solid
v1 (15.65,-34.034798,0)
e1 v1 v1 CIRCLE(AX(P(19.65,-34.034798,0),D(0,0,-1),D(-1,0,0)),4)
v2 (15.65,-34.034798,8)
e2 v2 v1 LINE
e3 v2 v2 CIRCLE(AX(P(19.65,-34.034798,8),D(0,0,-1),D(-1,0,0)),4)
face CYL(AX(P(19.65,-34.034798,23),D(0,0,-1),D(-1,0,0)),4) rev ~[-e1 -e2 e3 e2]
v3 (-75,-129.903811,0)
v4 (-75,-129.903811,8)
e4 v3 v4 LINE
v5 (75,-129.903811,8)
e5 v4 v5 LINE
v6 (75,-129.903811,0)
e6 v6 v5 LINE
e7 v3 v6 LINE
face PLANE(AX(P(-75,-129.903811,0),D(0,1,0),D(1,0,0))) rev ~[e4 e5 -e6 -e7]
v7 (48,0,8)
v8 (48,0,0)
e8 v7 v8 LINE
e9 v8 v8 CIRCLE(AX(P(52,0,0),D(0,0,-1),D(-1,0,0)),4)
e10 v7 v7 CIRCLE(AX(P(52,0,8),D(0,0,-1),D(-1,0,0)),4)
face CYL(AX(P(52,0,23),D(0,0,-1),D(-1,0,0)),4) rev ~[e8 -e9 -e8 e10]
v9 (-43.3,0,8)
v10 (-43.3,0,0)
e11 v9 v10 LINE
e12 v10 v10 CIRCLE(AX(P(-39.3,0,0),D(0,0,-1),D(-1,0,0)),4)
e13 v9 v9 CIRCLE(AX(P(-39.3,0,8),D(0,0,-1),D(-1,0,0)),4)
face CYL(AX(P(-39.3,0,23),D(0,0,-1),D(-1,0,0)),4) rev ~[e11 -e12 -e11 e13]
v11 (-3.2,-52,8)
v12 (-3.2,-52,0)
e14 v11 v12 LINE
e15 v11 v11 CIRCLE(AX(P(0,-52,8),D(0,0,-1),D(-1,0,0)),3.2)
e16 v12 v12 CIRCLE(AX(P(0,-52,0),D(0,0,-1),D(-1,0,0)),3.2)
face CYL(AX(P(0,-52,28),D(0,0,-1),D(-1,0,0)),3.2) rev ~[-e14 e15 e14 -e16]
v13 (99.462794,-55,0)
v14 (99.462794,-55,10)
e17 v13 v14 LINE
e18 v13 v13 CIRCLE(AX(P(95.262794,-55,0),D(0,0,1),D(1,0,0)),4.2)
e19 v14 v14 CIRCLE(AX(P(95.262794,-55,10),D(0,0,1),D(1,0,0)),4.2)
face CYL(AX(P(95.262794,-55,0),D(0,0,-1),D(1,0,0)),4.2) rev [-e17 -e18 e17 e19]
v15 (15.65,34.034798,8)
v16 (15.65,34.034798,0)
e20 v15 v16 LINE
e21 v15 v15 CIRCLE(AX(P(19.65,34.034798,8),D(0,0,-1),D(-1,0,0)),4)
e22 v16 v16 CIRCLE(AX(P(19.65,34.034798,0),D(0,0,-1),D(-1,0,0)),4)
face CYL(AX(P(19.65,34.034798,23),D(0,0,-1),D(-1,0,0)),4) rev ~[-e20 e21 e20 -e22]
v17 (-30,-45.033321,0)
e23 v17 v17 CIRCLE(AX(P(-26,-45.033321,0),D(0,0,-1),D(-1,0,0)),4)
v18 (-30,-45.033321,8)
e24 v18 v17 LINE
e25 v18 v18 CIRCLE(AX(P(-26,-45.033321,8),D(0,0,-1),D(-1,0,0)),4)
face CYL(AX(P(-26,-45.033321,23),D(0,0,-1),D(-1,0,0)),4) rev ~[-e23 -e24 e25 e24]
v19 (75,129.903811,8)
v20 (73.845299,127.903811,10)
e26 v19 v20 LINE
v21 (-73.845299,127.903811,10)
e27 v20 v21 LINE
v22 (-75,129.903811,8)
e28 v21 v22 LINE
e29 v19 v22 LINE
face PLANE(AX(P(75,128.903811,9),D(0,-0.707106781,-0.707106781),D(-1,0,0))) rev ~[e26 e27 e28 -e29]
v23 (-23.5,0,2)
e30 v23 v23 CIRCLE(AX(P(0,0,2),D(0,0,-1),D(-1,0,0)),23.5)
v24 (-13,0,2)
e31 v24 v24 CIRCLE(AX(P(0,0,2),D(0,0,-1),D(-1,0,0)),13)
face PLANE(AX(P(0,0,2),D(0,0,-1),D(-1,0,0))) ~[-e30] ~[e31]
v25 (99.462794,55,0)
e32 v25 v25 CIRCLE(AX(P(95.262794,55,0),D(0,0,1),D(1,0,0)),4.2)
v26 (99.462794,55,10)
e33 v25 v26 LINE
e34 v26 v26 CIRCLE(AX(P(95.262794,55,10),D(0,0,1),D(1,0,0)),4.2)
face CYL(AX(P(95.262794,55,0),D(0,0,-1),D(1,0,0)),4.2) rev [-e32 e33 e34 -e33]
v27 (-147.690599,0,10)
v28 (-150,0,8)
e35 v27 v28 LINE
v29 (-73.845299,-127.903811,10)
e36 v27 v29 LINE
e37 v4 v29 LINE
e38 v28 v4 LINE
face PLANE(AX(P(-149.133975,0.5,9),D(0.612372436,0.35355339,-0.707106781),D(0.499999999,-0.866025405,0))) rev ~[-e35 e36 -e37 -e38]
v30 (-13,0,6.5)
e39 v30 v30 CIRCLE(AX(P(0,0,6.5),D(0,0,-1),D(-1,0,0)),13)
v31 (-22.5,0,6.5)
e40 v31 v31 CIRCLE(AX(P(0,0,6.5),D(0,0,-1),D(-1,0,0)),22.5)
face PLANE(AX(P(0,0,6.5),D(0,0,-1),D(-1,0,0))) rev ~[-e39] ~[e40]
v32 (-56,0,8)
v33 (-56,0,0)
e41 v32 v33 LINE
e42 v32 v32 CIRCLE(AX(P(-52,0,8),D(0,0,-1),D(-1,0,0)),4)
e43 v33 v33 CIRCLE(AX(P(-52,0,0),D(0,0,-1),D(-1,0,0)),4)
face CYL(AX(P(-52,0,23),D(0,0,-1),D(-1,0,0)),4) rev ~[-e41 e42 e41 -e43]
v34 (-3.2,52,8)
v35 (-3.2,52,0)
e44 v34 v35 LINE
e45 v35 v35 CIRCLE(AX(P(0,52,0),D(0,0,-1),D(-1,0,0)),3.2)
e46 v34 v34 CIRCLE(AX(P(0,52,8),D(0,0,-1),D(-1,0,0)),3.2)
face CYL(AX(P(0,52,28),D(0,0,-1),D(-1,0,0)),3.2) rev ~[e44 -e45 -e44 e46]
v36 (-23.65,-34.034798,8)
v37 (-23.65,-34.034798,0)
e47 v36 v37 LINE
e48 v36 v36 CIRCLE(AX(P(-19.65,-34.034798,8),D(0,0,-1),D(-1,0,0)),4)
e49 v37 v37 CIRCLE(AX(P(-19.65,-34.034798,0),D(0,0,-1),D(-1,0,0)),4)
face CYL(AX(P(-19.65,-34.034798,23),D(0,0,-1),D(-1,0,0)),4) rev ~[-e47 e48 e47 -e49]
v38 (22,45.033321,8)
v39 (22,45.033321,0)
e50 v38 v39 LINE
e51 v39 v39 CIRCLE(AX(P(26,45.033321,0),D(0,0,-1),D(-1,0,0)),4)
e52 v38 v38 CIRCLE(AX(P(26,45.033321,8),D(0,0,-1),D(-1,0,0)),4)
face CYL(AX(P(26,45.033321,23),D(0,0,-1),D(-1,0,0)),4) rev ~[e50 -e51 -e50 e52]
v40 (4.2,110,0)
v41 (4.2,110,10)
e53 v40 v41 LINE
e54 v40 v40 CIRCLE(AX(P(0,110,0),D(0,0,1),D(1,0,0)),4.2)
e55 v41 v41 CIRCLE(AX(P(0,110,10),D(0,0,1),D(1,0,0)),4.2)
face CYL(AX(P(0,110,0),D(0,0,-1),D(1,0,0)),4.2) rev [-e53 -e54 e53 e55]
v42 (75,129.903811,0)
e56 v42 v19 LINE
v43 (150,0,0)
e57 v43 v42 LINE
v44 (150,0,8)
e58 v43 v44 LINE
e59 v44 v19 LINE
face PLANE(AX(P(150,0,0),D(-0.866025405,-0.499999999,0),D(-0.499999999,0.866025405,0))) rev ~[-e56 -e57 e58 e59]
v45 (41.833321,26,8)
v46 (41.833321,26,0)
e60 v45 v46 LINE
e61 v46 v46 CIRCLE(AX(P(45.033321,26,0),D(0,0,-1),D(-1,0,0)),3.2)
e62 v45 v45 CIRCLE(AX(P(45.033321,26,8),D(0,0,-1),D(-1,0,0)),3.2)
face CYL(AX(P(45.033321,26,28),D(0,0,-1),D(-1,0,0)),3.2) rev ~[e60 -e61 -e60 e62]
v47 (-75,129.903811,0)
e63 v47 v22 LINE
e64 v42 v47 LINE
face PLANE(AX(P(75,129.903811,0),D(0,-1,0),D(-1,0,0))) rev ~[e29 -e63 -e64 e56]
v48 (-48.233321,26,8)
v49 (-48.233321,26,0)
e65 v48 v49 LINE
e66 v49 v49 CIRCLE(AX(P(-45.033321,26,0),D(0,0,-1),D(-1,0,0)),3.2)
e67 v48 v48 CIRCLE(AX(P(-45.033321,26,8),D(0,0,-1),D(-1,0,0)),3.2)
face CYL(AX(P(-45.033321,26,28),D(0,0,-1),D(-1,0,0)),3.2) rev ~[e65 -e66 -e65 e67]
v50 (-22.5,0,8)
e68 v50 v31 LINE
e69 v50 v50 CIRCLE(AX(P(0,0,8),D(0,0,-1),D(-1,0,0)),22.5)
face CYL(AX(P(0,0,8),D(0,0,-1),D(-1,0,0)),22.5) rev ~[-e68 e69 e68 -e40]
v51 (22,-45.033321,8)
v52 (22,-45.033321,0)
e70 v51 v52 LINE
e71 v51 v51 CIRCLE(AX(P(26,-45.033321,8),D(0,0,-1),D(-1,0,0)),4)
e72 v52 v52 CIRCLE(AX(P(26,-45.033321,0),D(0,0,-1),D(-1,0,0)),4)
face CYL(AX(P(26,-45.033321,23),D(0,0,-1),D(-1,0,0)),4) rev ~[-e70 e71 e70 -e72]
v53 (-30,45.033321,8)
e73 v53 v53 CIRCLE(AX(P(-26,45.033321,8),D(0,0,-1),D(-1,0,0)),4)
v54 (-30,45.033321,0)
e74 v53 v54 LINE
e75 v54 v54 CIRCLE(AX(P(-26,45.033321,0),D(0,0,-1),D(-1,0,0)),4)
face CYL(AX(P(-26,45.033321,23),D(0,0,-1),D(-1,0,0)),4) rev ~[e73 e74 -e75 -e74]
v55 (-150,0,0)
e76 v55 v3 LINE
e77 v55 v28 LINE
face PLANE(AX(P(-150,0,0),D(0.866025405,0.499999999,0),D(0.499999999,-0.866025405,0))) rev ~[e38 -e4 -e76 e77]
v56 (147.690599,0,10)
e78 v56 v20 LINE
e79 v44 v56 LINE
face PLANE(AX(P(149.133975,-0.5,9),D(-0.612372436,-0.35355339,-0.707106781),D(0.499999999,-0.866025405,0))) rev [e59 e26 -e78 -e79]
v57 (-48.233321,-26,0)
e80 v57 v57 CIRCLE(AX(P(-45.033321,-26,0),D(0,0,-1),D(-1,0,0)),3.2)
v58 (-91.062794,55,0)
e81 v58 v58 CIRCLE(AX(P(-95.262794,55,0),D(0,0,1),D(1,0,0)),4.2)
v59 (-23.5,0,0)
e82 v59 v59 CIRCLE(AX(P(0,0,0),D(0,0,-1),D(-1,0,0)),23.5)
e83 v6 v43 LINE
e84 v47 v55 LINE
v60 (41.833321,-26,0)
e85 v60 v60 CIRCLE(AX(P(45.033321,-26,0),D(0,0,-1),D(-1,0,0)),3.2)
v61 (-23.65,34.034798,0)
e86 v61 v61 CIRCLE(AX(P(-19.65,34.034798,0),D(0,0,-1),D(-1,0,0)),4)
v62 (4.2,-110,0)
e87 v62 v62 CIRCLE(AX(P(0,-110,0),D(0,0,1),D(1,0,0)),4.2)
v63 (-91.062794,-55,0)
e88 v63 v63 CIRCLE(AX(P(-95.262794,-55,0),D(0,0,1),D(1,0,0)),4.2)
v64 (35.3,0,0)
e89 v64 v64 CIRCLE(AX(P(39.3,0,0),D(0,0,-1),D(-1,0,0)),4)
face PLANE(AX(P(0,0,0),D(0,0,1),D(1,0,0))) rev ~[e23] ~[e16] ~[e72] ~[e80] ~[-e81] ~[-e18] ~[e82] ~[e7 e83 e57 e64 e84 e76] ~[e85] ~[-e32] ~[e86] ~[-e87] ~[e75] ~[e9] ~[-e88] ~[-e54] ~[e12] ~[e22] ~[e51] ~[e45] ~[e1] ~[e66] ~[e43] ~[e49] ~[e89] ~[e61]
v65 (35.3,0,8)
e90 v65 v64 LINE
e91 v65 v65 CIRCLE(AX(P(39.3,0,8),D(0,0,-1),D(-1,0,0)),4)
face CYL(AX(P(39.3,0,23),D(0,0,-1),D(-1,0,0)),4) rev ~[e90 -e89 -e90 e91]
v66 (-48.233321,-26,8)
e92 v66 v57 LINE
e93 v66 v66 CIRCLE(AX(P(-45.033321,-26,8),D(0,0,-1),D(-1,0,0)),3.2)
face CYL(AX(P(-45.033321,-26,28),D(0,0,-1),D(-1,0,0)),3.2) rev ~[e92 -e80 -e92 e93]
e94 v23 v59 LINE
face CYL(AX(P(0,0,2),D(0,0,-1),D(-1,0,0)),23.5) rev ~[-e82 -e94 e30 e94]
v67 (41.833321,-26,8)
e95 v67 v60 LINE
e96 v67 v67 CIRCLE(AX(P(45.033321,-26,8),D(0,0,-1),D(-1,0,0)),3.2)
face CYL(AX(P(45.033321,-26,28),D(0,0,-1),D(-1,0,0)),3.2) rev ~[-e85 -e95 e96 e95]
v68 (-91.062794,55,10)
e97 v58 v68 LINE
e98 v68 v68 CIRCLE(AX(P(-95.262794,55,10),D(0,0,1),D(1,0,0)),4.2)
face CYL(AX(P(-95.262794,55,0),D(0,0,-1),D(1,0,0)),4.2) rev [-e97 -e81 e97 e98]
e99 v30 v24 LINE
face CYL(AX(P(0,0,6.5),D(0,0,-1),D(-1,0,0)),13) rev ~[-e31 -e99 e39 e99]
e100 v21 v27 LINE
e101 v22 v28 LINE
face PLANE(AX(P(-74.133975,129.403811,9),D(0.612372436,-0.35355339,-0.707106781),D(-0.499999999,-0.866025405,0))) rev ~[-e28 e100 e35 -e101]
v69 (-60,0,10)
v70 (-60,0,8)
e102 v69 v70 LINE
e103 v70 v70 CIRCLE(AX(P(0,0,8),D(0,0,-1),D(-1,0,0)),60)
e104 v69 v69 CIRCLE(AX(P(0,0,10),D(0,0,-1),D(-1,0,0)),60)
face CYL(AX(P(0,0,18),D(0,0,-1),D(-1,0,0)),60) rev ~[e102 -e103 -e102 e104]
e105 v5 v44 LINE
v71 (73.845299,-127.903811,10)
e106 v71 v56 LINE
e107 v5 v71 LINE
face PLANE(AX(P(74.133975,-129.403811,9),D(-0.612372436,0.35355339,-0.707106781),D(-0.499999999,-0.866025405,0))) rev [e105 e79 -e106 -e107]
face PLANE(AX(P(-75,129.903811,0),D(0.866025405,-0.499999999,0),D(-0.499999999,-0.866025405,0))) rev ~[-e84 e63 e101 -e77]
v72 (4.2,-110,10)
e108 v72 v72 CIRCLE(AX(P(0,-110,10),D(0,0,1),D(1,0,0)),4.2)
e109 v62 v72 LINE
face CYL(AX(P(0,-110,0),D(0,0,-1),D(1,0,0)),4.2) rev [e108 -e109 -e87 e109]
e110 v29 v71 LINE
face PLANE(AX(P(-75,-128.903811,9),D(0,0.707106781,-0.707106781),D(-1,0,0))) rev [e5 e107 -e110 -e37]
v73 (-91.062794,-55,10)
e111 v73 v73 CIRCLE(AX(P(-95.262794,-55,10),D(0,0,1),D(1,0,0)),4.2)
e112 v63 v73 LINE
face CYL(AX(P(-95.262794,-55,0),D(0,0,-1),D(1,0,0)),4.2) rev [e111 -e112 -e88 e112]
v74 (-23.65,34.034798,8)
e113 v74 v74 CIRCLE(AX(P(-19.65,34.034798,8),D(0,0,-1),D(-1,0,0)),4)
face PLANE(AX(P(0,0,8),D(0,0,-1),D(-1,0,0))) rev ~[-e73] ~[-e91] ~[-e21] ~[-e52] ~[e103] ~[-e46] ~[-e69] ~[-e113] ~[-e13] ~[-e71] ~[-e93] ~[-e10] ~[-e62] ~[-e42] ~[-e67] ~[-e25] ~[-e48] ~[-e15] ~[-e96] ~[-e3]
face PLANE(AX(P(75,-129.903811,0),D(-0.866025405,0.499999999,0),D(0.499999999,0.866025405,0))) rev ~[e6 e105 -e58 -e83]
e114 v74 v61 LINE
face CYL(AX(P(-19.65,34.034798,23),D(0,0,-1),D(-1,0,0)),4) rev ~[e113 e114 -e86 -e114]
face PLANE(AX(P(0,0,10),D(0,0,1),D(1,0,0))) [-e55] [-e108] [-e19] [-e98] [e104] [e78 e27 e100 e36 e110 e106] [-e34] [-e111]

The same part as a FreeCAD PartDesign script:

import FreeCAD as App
import Part
import Sketcher
from FreeCAD import Vector
Q = App.Units.Quantity


def edges_at(feature, points):
    """Names of the edges that pass closest to the given points."""
    edges = feature.Shape.Edges
    near = lambda p: min(range(len(edges)), key=lambda i: edges[i].distToShape(Part.Vertex(*p))[0])
    return sorted({f"Edge{near(p) + 1}" for p in points})

doc = App.newDocument("Part")
body = doc.addObject("PartDesign::Body", "Body")

sketch1 = body.newObject("Sketcher::SketchObject", "Sketch")
sketch1.AttachmentSupport = (doc.getObject("XY_Plane"), [""])
sketch1.MapMode = "FlatFace"
sketch1.addGeometry([
    Part.LineSegment(Vector(75, -129.903811, 0), Vector(150, 0, 0)),
    Part.LineSegment(Vector(150, 0, 0), Vector(75, 129.903811, 0)),
    Part.LineSegment(Vector(75, 129.903811, 0), Vector(-75, 129.903811, 0)),
    Part.LineSegment(Vector(-75, 129.903811, 0), Vector(-150, 0, 0)),
    Part.LineSegment(Vector(-150, 0, 0), Vector(-75, -129.903811, 0)),
    Part.LineSegment(Vector(-75, -129.903811, 0), Vector(75, -129.903811, 0)),
    Part.Circle(Vector(-95.262794, -55, 0), Vector(0, 0, 1), 4.2),
    Part.Circle(Vector(0, -110, 0), Vector(0, 0, 1), 4.2),
    Part.Circle(Vector(95.262794, -55, 0), Vector(0, 0, 1), 4.2),
    Part.Circle(Vector(-95.262794, 55, 0), Vector(0, 0, 1), 4.2),
    Part.Circle(Vector(95.262794, 55, 0), Vector(0, 0, 1), 4.2),
    Part.Circle(Vector(0, 110, 0), Vector(0, 0, 1), 4.2),
], False)
sketch1.addConstraint([
    Sketcher.Constraint("Coincident", 0, 2, 1, 1),
    Sketcher.Constraint("Coincident", 1, 2, 2, 1),
    Sketcher.Constraint("Coincident", 2, 2, 3, 1),
    Sketcher.Constraint("Coincident", 3, 2, 4, 1),
    Sketcher.Constraint("Coincident", 4, 2, 5, 1),
    Sketcher.Constraint("Coincident", 5, 2, 0, 1),
    Sketcher.Constraint("Horizontal", 2),
    Sketcher.Constraint("Horizontal", 5),
    Sketcher.Constraint("Equal", 6, 7),
    Sketcher.Constraint("Equal", 7, 8),
    Sketcher.Constraint("Equal", 8, 9),
    Sketcher.Constraint("Equal", 9, 10),
    Sketcher.Constraint("Equal", 10, 11),
    Sketcher.Constraint("Symmetric", 8, 3, 9, 3, -1, 1),
    Sketcher.Constraint("Symmetric", 6, 3, 10, 3, -1, 1),
    Sketcher.Constraint("Symmetric", 7, 3, 11, 3, -1, 1),
    Sketcher.Constraint("Symmetric", 0, 2, 3, 2, -1, 1),
    Sketcher.Constraint("Symmetric", 1, 2, 4, 2, -1, 1),
    Sketcher.Constraint("Symmetric", 6, 3, 8, 3, -2),
    Sketcher.Constraint("PointOnObject", 7, 3, -2),
    Sketcher.Constraint("PointOnObject", 0, 2, -1),
    Sketcher.Constraint("Parallel", 0, 3),
    Sketcher.Constraint("Vertical", 2, 2, 4, 2),
    Sketcher.Constraint("Diameter", 6, 8.4),
    Sketcher.Constraint("DistanceX", 2, 2, 2, 1, 150.0),
    Sketcher.Constraint("Angle", 0, Q("60 deg")),
    Sketcher.Constraint("Distance", 0, 150.0),
    Sketcher.Constraint("DistanceY", 6, 3, -1, 1, 55.0),
    Sketcher.Constraint("DistanceY", 7, 3, -1, 1, 110.0),
    Sketcher.Constraint("DistanceX", 6, 3, 8, 3, 190.525588),
])
pad1 = body.newObject("PartDesign::Pad", "Pad")
pad1.Profile = sketch1
pad1.Length = 10

sketch2 = body.newObject("Sketcher::SketchObject", "Sketch001")
sketch2.AttachmentSupport = (doc.getObject("XZ_Plane"), [""])
sketch2.MapMode = "FlatFace"
sketch2.addGeometry([
    Part.LineSegment(Vector(-23.5, 2, 0), Vector(-23.5, -10, 0)),
    Part.LineSegment(Vector(-23.5, -10, 0), Vector(0, -10, 0)),
    Part.LineSegment(Vector(0, -10, 0), Vector(0, 18, 0)),
    Part.LineSegment(Vector(0, 18, 0), Vector(-60, 18, 0)),
    Part.LineSegment(Vector(-60, 18, 0), Vector(-60, 8, 0)),
    Part.LineSegment(Vector(-60, 8, 0), Vector(-22.5, 8, 0)),
    Part.LineSegment(Vector(-22.5, 8, 0), Vector(-22.5, 6.5, 0)),
    Part.LineSegment(Vector(-22.5, 6.5, 0), Vector(-13, 6.5, 0)),
    Part.LineSegment(Vector(-13, 6.5, 0), Vector(-13, 2, 0)),
    Part.LineSegment(Vector(-13, 2, 0), Vector(-23.5, 2, 0)),
], False)
sketch2.addConstraint([
    Sketcher.Constraint("Coincident", 0, 2, 1, 1),
    Sketcher.Constraint("Coincident", 1, 2, 2, 1),
    Sketcher.Constraint("Coincident", 2, 2, 3, 1),
    Sketcher.Constraint("Coincident", 3, 2, 4, 1),
    Sketcher.Constraint("Coincident", 4, 2, 5, 1),
    Sketcher.Constraint("Coincident", 5, 2, 6, 1),
    Sketcher.Constraint("Coincident", 6, 2, 7, 1),
    Sketcher.Constraint("Coincident", 7, 2, 8, 1),
    Sketcher.Constraint("Coincident", 8, 2, 9, 1),
    Sketcher.Constraint("Coincident", 9, 2, 0, 1),
    Sketcher.Constraint("Vertical", 0),
    Sketcher.Constraint("Horizontal", 1),
    Sketcher.Constraint("Vertical", 2),
    Sketcher.Constraint("Horizontal", 3),
    Sketcher.Constraint("Vertical", 4),
    Sketcher.Constraint("Horizontal", 5),
    Sketcher.Constraint("Vertical", 6),
    Sketcher.Constraint("Horizontal", 7),
    Sketcher.Constraint("Vertical", 8),
    Sketcher.Constraint("Horizontal", 9),
    Sketcher.Constraint("PointOnObject", 1, 2, -2),
    Sketcher.Constraint("DistanceX", 3, 2, 3, 1, 60.0),
    Sketcher.Constraint("DistanceY", 0, 2, 0, 1, 12.0),
    Sketcher.Constraint("DistanceY", 2, 1, 2, 2, 28.0),
    Sketcher.Constraint("DistanceY", 4, 2, 4, 1, 10.0),
    Sketcher.Constraint("DistanceX", 1, 1, 1, 2, 23.5),
    Sketcher.Constraint("DistanceX", 5, 1, 5, 2, 37.5),
    Sketcher.Constraint("DistanceX", 7, 1, 7, 2, 9.5),
    Sketcher.Constraint("DistanceY", 6, 2, 6, 1, 1.5),
    Sketcher.Constraint("DistanceY", 0, 2, -1, 1, 10.0),
])
groove = body.newObject("PartDesign::Groove", "Groove")
groove.Profile = sketch2
groove.ReferenceAxis = (sketch2, ["V_Axis"])
groove.Angle = 360

sketch3 = body.newObject("Sketcher::SketchObject", "Sketch002")
sketch3.AttachmentSupport = (doc.getObject("XY_Plane"), [""])
sketch3.MapMode = "FlatFace"
sketch3.AttachmentOffset = App.Placement(Vector(0, 0, 8), App.Rotation())
sketch3.addGeometry([
    Part.Circle(Vector(-26, 45.033321, 0), Vector(0, 0, 1), 4),
    Part.Circle(Vector(-52, 0, 0), Vector(0, 0, 1), 4),
    Part.Circle(Vector(-26, -45.033321, 0), Vector(0, 0, 1), 4),
    Part.Circle(Vector(26, -45.033321, 0), Vector(0, 0, 1), 4),
    Part.Circle(Vector(52, 0, 0), Vector(0, 0, 1), 4),
    Part.Circle(Vector(26, 45.033321, 0), Vector(0, 0, 1), 4),
    Part.Circle(Vector(-19.65, 34.034798, 0), Vector(0, 0, 1), 4),
    Part.Circle(Vector(-39.3, 0, 0), Vector(0, 0, 1), 4),
    Part.Circle(Vector(-19.65, -34.034798, 0), Vector(0, 0, 1), 4),
    Part.Circle(Vector(19.65, -34.034798, 0), Vector(0, 0, 1), 4),
    Part.Circle(Vector(39.3, 0, 0), Vector(0, 0, 1), 4),
    Part.Circle(Vector(19.65, 34.034798, 0), Vector(0, 0, 1), 4),
], False)
sketch3.addConstraint([
    Sketcher.Constraint("Equal", 0, 1),
    Sketcher.Constraint("Equal", 1, 2),
    Sketcher.Constraint("Equal", 2, 3),
    Sketcher.Constraint("Equal", 3, 4),
    Sketcher.Constraint("Equal", 4, 5),
    Sketcher.Constraint("Equal", 5, 6),
    Sketcher.Constraint("Equal", 6, 7),
    Sketcher.Constraint("Equal", 7, 8),
    Sketcher.Constraint("Equal", 8, 9),
    Sketcher.Constraint("Equal", 9, 10),
    Sketcher.Constraint("Equal", 10, 11),
    Sketcher.Constraint("Symmetric", 0, 3, 3, 3, -1, 1),
    Sketcher.Constraint("Symmetric", 1, 3, 4, 3, -1, 1),
    Sketcher.Constraint("Symmetric", 2, 3, 5, 3, -1, 1),
    Sketcher.Constraint("Symmetric", 6, 3, 9, 3, -1, 1),
    Sketcher.Constraint("Symmetric", 7, 3, 10, 3, -1, 1),
    Sketcher.Constraint("Symmetric", 8, 3, 11, 3, -1, 1),
    Sketcher.Constraint("Symmetric", 2, 3, 3, 3, -2),
    Sketcher.Constraint("Symmetric", 8, 3, 9, 3, -2),
    Sketcher.Constraint("PointOnObject", 1, 3, -1),
    Sketcher.Constraint("PointOnObject", 7, 3, -1),
    Sketcher.Constraint("Diameter", 0, 8.0),
    Sketcher.Constraint("DistanceX", 0, 3, -1, 1, 26.0),
    Sketcher.Constraint("DistanceX", 1, 3, -1, 1, 52.0),
    Sketcher.Constraint("DistanceX", 7, 3, -1, 1, 39.3),
    Sketcher.Constraint("DistanceX", 8, 3, 9, 3, 39.3),
    Sketcher.Constraint("DistanceY", -1, 1, 6, 3, 34.034798),
    Sketcher.Constraint("DistanceY", -1, 1, 0, 3, 45.033321),
])
doc.recompute()
hole = body.newObject("PartDesign::Hole", "Hole")
hole.Profile = sketch3
hole.ThreadType = "None"
hole.Diameter = 8
hole.DepthType = "Dimension"
hole.Depth = 15
hole.DrillPoint = "Flat"

sketch4 = body.newObject("Sketcher::SketchObject", "Sketch003")
sketch4.AttachmentSupport = (doc.getObject("XY_Plane"), [""])
sketch4.MapMode = "FlatFace"
sketch4.AttachmentOffset = App.Placement(Vector(0, 0, 8), App.Rotation())
sketch4.addGeometry([
    Part.Circle(Vector(0, 52, 0), Vector(0, 0, 1), 3.2),
    Part.Circle(Vector(-45.033321, 26, 0), Vector(0, 0, 1), 3.2),
    Part.Circle(Vector(-45.033321, -26, 0), Vector(0, 0, 1), 3.2),
    Part.Circle(Vector(0, -52, 0), Vector(0, 0, 1), 3.2),
    Part.Circle(Vector(45.033321, -26, 0), Vector(0, 0, 1), 3.2),
    Part.Circle(Vector(45.033321, 26, 0), Vector(0, 0, 1), 3.2),
], False)
sketch4.addConstraint([
    Sketcher.Constraint("Equal", 0, 1),
    Sketcher.Constraint("Equal", 1, 2),
    Sketcher.Constraint("Equal", 2, 3),
    Sketcher.Constraint("Equal", 3, 4),
    Sketcher.Constraint("Equal", 4, 5),
    Sketcher.Constraint("Symmetric", 0, 3, 3, 3, -1, 1),
    Sketcher.Constraint("Symmetric", 1, 3, 4, 3, -1, 1),
    Sketcher.Constraint("Symmetric", 2, 3, 5, 3, -1, 1),
    Sketcher.Constraint("Symmetric", 2, 3, 4, 3, -2),
    Sketcher.Constraint("PointOnObject", 0, 3, -2),
    Sketcher.Constraint("Diameter", 0, 6.4),
    Sketcher.Constraint("DistanceY", -1, 1, 0, 3, 52.0),
    Sketcher.Constraint("DistanceY", -1, 1, 1, 3, 26.0),
    Sketcher.Constraint("DistanceX", 1, 3, -1, 1, 45.033321),
])
doc.recompute()
hole2 = body.newObject("PartDesign::Hole", "Hole001")
hole2.Profile = sketch4
hole2.ThreadType = "None"
hole2.Diameter = 6.4
hole2.DepthType = "Dimension"
hole2.Depth = 20
hole2.DrillPoint = "Flat"
doc.recompute()

chamfer = body.newObject("PartDesign::Chamfer", "Chamfer")
chamfer.Base = (hole2, edges_at(hole2, [
    (0, -129.904, 10),
    (112.5, -64.952, 10),
    (112.5, 64.952, 10),
    (0, 129.904, 10),
    (-112.5, 64.952, 10),
    (-112.5, -64.952, 10),
]))
chamfer.Size = 2

doc.recompute()
